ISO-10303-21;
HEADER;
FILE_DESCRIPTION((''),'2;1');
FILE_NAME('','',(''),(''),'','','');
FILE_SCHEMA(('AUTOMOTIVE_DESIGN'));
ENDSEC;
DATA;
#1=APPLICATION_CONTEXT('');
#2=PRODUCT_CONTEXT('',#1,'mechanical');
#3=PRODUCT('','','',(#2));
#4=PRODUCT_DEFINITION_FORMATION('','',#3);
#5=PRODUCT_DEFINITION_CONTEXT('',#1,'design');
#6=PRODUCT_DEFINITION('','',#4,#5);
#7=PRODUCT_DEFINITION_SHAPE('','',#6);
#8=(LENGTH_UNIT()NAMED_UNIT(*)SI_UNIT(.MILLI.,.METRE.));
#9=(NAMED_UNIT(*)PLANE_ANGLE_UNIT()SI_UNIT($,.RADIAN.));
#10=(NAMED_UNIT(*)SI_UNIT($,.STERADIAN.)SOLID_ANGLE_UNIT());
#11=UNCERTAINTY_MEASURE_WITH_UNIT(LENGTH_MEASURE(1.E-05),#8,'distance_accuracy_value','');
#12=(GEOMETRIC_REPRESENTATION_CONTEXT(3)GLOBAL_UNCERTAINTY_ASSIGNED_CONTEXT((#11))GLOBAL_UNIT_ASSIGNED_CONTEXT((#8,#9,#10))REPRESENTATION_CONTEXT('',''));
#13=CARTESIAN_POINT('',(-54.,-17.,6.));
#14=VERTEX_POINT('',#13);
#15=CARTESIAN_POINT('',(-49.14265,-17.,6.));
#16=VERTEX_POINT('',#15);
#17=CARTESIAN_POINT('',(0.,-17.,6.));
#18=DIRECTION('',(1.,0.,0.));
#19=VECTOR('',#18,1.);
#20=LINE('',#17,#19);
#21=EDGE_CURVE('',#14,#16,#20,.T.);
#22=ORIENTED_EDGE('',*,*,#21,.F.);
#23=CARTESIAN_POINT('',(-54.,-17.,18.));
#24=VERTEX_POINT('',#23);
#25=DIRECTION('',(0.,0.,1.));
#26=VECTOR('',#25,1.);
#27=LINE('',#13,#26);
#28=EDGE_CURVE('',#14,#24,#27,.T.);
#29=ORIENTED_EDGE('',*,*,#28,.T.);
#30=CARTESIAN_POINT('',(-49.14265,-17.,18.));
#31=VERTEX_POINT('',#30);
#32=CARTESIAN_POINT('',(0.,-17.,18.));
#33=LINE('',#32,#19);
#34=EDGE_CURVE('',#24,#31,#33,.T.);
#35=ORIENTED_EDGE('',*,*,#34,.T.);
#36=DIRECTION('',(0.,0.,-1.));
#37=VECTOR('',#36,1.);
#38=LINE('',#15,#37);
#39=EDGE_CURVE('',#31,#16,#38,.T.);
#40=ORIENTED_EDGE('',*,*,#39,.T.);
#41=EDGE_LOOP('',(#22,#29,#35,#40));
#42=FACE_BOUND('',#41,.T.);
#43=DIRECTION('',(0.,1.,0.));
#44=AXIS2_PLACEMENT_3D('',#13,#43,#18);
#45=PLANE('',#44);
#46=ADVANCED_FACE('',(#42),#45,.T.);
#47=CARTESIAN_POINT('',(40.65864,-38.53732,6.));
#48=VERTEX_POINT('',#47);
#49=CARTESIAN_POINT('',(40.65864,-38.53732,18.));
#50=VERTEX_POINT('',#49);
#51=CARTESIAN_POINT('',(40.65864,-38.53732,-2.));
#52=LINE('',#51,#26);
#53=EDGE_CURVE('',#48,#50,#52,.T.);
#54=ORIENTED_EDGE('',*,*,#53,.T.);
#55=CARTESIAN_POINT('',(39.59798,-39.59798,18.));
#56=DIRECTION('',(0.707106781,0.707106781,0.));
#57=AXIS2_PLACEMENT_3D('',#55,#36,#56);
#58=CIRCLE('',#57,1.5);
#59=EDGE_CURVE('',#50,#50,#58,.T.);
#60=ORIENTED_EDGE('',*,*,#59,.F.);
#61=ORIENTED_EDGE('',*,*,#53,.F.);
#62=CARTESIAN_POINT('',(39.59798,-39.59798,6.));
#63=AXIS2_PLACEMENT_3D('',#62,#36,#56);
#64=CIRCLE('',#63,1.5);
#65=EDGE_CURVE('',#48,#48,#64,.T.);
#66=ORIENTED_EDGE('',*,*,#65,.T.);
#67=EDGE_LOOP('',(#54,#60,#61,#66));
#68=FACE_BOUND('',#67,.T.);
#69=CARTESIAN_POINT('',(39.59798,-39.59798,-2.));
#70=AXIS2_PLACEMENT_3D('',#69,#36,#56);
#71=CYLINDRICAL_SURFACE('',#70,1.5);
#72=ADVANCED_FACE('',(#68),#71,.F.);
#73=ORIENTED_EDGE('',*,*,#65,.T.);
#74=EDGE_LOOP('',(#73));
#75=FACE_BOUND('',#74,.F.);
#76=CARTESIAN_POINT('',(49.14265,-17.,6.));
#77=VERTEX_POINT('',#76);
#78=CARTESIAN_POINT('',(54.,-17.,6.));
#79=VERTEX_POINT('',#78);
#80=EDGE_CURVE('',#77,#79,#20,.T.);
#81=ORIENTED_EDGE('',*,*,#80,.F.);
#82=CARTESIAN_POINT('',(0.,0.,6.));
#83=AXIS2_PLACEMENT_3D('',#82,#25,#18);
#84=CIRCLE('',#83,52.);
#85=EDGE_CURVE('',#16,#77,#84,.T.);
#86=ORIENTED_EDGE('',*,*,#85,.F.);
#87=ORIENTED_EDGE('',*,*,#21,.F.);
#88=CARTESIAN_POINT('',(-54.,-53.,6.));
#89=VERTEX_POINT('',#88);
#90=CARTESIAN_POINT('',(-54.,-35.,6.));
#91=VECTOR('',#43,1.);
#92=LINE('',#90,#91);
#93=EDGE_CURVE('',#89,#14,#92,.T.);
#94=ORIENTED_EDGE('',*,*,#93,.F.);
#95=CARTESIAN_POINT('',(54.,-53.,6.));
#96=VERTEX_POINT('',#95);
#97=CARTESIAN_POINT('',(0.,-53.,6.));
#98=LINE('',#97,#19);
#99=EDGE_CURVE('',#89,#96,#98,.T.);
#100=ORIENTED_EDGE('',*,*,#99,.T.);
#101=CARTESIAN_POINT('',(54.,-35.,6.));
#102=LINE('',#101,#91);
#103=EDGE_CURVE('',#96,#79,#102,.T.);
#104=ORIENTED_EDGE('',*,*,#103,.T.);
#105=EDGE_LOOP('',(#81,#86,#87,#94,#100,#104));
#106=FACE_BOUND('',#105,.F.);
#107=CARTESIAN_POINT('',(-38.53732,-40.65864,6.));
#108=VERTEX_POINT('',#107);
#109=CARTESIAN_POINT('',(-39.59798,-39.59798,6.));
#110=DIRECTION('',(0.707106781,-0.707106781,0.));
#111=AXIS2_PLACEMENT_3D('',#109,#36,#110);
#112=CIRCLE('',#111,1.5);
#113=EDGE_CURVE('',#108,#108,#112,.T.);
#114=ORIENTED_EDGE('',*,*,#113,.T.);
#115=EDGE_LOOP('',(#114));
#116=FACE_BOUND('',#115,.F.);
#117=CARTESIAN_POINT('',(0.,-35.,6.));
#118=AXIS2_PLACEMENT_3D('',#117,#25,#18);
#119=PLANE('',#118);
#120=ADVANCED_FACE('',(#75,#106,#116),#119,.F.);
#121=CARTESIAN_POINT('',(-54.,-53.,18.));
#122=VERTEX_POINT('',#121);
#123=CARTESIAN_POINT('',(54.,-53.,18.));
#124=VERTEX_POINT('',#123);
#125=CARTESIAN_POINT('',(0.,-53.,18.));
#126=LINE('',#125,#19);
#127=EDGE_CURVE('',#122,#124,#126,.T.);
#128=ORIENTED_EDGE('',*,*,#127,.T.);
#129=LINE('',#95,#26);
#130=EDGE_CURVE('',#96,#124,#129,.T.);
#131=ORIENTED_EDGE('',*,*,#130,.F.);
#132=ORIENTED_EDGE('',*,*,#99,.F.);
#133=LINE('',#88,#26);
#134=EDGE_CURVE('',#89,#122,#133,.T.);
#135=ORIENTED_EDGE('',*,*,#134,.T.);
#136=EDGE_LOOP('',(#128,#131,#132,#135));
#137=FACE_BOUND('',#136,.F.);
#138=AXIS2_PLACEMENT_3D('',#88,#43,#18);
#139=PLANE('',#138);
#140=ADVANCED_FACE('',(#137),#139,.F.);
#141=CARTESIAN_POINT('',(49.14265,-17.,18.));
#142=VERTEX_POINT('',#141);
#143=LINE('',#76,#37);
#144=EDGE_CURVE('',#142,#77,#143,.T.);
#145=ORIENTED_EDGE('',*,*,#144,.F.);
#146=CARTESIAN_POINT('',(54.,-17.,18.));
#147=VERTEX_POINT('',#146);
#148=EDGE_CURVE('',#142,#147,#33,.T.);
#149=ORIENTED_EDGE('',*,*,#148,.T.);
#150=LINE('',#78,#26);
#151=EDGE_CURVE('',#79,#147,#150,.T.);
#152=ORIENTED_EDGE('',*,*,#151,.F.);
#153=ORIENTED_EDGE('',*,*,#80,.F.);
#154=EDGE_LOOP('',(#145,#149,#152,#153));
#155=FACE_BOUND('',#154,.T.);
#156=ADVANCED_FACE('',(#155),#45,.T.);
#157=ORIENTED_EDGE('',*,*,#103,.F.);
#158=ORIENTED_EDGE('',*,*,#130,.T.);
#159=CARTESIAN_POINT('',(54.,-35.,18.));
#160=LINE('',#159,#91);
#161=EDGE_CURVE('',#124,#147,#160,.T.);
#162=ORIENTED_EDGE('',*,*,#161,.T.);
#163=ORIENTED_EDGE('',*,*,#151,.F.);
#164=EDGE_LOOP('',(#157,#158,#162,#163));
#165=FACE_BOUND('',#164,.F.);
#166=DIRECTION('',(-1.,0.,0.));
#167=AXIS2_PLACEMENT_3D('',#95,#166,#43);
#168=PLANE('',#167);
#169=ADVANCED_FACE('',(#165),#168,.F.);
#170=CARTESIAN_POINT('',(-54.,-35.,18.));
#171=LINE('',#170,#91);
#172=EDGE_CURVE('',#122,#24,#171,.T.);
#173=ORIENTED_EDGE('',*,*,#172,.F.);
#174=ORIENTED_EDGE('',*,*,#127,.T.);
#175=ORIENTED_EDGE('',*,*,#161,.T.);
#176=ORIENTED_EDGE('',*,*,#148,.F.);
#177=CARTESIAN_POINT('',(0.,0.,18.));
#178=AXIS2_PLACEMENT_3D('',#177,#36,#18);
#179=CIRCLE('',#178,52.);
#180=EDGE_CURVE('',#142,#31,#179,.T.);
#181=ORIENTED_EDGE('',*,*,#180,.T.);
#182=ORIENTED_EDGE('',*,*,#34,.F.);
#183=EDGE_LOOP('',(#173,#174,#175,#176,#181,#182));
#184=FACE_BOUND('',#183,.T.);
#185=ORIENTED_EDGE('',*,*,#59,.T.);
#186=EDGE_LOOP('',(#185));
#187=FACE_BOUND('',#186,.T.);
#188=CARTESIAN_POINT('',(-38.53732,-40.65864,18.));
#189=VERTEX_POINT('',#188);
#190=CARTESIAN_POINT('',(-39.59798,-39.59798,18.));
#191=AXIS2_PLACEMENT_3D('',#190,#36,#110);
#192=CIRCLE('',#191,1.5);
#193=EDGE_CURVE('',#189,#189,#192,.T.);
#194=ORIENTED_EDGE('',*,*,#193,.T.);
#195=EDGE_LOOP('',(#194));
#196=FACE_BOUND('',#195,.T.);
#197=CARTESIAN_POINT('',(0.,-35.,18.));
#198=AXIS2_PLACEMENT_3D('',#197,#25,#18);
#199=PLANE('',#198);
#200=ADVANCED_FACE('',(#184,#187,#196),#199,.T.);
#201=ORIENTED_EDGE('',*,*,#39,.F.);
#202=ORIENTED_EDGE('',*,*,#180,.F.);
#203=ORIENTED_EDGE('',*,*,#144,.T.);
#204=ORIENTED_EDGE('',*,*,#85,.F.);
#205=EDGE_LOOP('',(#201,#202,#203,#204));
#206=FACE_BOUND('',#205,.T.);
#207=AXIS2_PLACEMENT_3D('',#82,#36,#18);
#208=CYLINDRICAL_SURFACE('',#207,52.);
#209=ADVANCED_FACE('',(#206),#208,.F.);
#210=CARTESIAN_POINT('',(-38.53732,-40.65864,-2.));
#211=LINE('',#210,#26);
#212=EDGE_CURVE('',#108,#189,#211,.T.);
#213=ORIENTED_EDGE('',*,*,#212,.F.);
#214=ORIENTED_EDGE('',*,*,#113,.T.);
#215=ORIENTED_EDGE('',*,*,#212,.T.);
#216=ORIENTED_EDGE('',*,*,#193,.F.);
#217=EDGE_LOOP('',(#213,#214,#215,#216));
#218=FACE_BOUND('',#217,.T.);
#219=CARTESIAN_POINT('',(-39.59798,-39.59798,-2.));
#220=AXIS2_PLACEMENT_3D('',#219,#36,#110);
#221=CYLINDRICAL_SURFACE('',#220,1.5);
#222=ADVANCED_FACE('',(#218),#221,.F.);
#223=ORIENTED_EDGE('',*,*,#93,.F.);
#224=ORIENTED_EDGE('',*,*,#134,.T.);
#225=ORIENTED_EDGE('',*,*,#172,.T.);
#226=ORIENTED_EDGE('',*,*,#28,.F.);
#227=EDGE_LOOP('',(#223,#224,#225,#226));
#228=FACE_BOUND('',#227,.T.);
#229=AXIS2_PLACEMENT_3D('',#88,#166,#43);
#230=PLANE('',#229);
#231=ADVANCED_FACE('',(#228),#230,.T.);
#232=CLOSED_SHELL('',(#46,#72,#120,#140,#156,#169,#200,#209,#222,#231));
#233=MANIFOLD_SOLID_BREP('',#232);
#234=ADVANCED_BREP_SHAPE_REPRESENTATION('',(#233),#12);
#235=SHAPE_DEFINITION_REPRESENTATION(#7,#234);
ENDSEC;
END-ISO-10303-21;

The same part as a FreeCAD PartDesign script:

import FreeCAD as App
import Part
import Sketcher

V = App.Vector


def add_polygon(sketch, points):
    """Adds a closed chain of lines whose ends are joined by coincident constraints."""
    first, n = sketch.GeometryCount, len(points)
    for a, b in zip(points, points[1:] + points[:1]):
        sketch.addGeometry(Part.LineSegment(App.Vector(*a, 0), App.Vector(*b, 0)), False)
    for i in range(n):
        sketch.addConstraint(Sketcher.Constraint("Coincident", first + i, 2, first + (i + 1) % n, 1))

doc = App.newDocument("Part")
body = doc.addObject("PartDesign::Body", "Body")

sketch1 = body.newObject("Sketcher::SketchObject", "Sketch")
sketch1.AttachmentSupport = (doc.getObject("XY_Plane"), [""])
sketch1.MapMode = "FlatFace"
sketch1.addGeometry(Part.Circle(V(0, 0, 0), V(0, 0, 1), 1.5), False)
sketch1.addConstraint([
    Sketcher.Constraint("Coincident", 0, 3, -1, 1),
    Sketcher.Constraint("Diameter", 0, 3.0),
])
pad1 = body.newObject("PartDesign::Pad", "Pad")
pad1.Profile = sketch1
pad1.Length = 50
body2 = doc.addObject("PartDesign::Body", "Body001")
doc.recompute()

body.Placement = App.Placement(V(39.59798, -39.59798, 2), App.Rotation(V(0, 0, 1), 45))
boolean = body2.newObject("PartDesign::Boolean", "Boolean")
boolean.Type = "Fuse"
boolean.addObjects([body])
body3 = doc.addObject("PartDesign::Body", "Body002")

sketch2 = body3.newObject("Sketcher::SketchObject", "Sketch001")
sketch2.AttachmentSupport = (doc.getObject("XY_Plane002"), [""])
sketch2.MapMode = "FlatFace"
sketch2.addGeometry(Part.Circle(V(0, 0, 0), V(0, 0, 1), 1.5), False)
sketch2.addConstraint([
    Sketcher.Constraint("Coincident", 0, 3, -1, 1),
    Sketcher.Constraint("Diameter", 0, 3.0),
])
pad2 = body3.newObject("PartDesign::Pad", "Pad001")
pad2.Profile = sketch2
pad2.Length = 50
body4 = doc.addObject("PartDesign::Body", "Body003")
doc.recompute()

body3.Placement = App.Placement(V(39.59798, 39.59798, 2), App.Rotation(V(0, 0, 1), 135))
boolean2 = body4.newObject("PartDesign::Boolean", "Boolean001")
boolean2.Type = "Fuse"
boolean2.addObjects([body3])
body5 = doc.addObject("PartDesign::Body", "Body004")

sketch3 = body5.newObject("Sketcher::SketchObject", "Sketch002")
sketch3.AttachmentSupport = (doc.getObject("XY_Plane004"), [""])
sketch3.MapMode = "FlatFace"
sketch3.AttachmentOffset = App.Placement(V(0, 0, 2), App.Rotation())
sketch3.addGeometry(Part.Circle(V(0, 56, 0), V(0, 0, 1), 1.5), False)
sketch3.addConstraint([
    Sketcher.Constraint("PointOnObject", 0, 3, -2),
    Sketcher.Constraint("Diameter", 0, 3.0),
    Sketcher.Constraint("DistanceY", -1, 1, 0, 3, 56.0),
])
pad3 = body5.newObject("PartDesign::Pad", "Pad002")
pad3.Profile = sketch3
pad3.Length = 50
body6 = doc.addObject("PartDesign::Body", "Body005")

sketch4 = body6.newObject("Sketcher::SketchObject", "Sketch003")
sketch4.AttachmentSupport = (doc.getObject("XY_Plane005"), [""])
sketch4.MapMode = "FlatFace"
sketch4.addGeometry(Part.Circle(V(0, 0, 0), V(0, 0, 1), 1.5), False)
sketch4.addConstraint([
    Sketcher.Constraint("Coincident", 0, 3, -1, 1),
    Sketcher.Constraint("Diameter", 0, 3.0),
])
pad4 = body6.newObject("PartDesign::Pad", "Pad003")
pad4.Profile = sketch4
pad4.Length = 50
body7 = doc.addObject("PartDesign::Body", "Body006")
doc.recompute()

body6.Placement = App.Placement(V(-39.59798, 39.59798, 2), App.Rotation(V(0, 0, 1), 225))
boolean3 = body7.newObject("PartDesign::Boolean", "Boolean002")
boolean3.Type = "Fuse"
boolean3.addObjects([body6])
body8 = doc.addObject("PartDesign::Body", "Body007")

sketch5 = body8.newObject("Sketcher::SketchObject", "Sketch004")
sketch5.AttachmentSupport = (doc.getObject("XY_Plane007"), [""])
sketch5.MapMode = "FlatFace"
sketch5.AttachmentOffset = App.Placement(V(0, 0, 2), App.Rotation())
sketch5.addGeometry(Part.Circle(V(-56, 0, 0), V(0, 0, 1), 1.5), False)
sketch5.addConstraint([
    Sketcher.Constraint("PointOnObject", 0, 3, -1),
    Sketcher.Constraint("Diameter", 0, 3.0),
    Sketcher.Constraint("DistanceX", 0, 3, -1, 1, 56.0),
])
pad5 = body8.newObject("PartDesign::Pad", "Pad004")
pad5.Profile = sketch5
pad5.Length = 50
body9 = doc.addObject("PartDesign::Body", "Body008")

sketch6 = body9.newObject("Sketcher::SketchObject", "Sketch005")
sketch6.AttachmentSupport = (doc.getObject("XY_Plane008"), [""])
sketch6.MapMode = "FlatFace"
sketch6.addGeometry(Part.Circle(V(0, 0, 0), V(0, 0, 1), 1.5), False)
sketch6.addConstraint([
    Sketcher.Constraint("Coincident", 0, 3, -1, 1),
    Sketcher.Constraint("Diameter", 0, 3.0),
])
pad6 = body9.newObject("PartDesign::Pad", "Pad005")
pad6.Profile = sketch6
pad6.Length = 50
body10 = doc.addObject("PartDesign::Body", "Body009")
doc.recompute()

body9.Placement = App.Placement(V(-39.59798, -39.59798, 2), App.Rotation(V(0, 0, -1), 45))
boolean4 = body10.newObject("PartDesign::Boolean", "Boolean003")
boolean4.Type = "Fuse"
boolean4.addObjects([body9])
body11 = doc.addObject("PartDesign::Body", "Body010")
body11.AllowCompound = True

sketch7 = body11.newObject("Sketcher::SketchObject", "Sketch006")
sketch7.AttachmentSupport = (doc.getObject("XY_Plane010"), [""])
sketch7.MapMode = "FlatFace"
sketch7.AttachmentOffset = App.Placement(V(0, 0, 2), App.Rotation())
sketch7.addGeometry(Part.Circle(V(0, -56, 0), V(0, 0, 1), 1.5), False)
sketch7.addConstraint([
    Sketcher.Constraint("PointOnObject", 0, 3, -2),
    Sketcher.Constraint("Diameter", 0, 3.0),
    Sketcher.Constraint("DistanceY", 0, 3, -1, 1, 56.0),
])
pad7 = body11.newObject("PartDesign::Pad", "Pad006")
pad7.Profile = sketch7
pad7.Length = 50
doc.recompute()

boolean5 = body11.newObject("PartDesign::Boolean", "Boolean004")
boolean5.Type = "Fuse"
boolean5.addObjects([body2])
doc.recompute()

boolean6 = body11.newObject("PartDesign::Boolean", "Boolean005")
boolean6.Type = "Fuse"
boolean6.addObjects([body4])
doc.recompute()

boolean7 = body11.newObject("PartDesign::Boolean", "Boolean006")
boolean7.Type = "Fuse"
boolean7.addObjects([body5])
doc.recompute()

boolean8 = body11.newObject("PartDesign::Boolean", "Boolean007")
boolean8.Type = "Fuse"
boolean8.addObjects([body7])
doc.recompute()

boolean9 = body11.newObject("PartDesign::Boolean", "Boolean008")
boolean9.Type = "Fuse"
boolean9.addObjects([body8])
doc.recompute()

boolean10 = body11.newObject("PartDesign::Boolean", "Boolean009")
boolean10.Type = "Fuse"
boolean10.addObjects([body10])
body12 = doc.addObject("PartDesign::Body", "Body011")

sketch8 = body12.newObject("Sketcher::SketchObject", "Sketch007")
sketch8.AttachmentSupport = (doc.getObject("XY_Plane011"), [""])
sketch8.MapMode = "FlatFace"
sketch8.AttachmentOffset = App.Placement(V(0, 0, 20), App.Rotation())
sketch8.addGeometry(Part.Circle(V(0, 0, 0), V(0, 0, 1), 52), False)
sketch8.addConstraint([
    Sketcher.Constraint("Coincident", 0, 3, -1, 1),
    Sketcher.Constraint("Diameter", 0, 104.0),
])
pad8 = body12.newObject("PartDesign::Pad", "Pad007")
pad8.Profile = sketch8
pad8.Length = 16
body13 = doc.addObject("PartDesign::Body", "Body012")

sketch9 = body13.newObject("Sketcher::SketchObject", "Sketch008")
sketch9.AttachmentSupport = (doc.getObject("XY_Plane012"), [""])
sketch9.MapMode = "FlatFace"
sketch9.AttachmentOffset = App.Placement(V(0, 0, 20), App.Rotation())
add_polygon(sketch9, [(-54, -17), (-54, -53), (54, -53), (54, -17)])
sketch9.addConstraint([
    Sketcher.Constraint("Vertical", 0),
    Sketcher.Constraint("Horizontal", 1),
    Sketcher.Constraint("Vertical", 2),
    Sketcher.Constraint("Horizontal", 3),
    Sketcher.Constraint("DistanceX", 1, 1, 1, 2, 108.0),
    Sketcher.Constraint("DistanceY", 0, 2, 0, 1, 36.0),
    Sketcher.Constraint("DistanceX", 0, 2, -1, 1, 54.0),
    Sketcher.Constraint("DistanceY", 0, 2, -1, 1, 53.0),
])
pad9 = body13.newObject("PartDesign::Pad", "Pad008")
pad9.Profile = sketch9
pad9.Length = 12
doc.recompute()

boolean11 = body13.newObject("PartDesign::Boolean", "Boolean010")
boolean11.Type = "Cut"
boolean11.addObjects([body12])
body14 = doc.addObject("PartDesign::Body", "Body013")
doc.recompute()

body13.Placement = App.Placement(V(0, 0, -10), App.Rotation(V(0, 0, 1), 0))
boolean12 = body14.newObject("PartDesign::Boolean", "Boolean011")
boolean12.Type = "Fuse"
boolean12.addObjects([body13])
doc.recompute()

boolean13 = body14.newObject("PartDesign::Boolean", "Boolean012")
boolean13.Type = "Cut"
boolean13.addObjects([body11])
body15 = doc.addObject("PartDesign::Body", "Body014")
doc.recompute()

body14.Placement = App.Placement(V(0, 0, -4), App.Rotation(V(0, 0, 1), 0))
boolean14 = body15.newObject("PartDesign::Boolean", "Boolean013")
boolean14.Type = "Fuse"
boolean14.addObjects([body14])

doc.recompute()
